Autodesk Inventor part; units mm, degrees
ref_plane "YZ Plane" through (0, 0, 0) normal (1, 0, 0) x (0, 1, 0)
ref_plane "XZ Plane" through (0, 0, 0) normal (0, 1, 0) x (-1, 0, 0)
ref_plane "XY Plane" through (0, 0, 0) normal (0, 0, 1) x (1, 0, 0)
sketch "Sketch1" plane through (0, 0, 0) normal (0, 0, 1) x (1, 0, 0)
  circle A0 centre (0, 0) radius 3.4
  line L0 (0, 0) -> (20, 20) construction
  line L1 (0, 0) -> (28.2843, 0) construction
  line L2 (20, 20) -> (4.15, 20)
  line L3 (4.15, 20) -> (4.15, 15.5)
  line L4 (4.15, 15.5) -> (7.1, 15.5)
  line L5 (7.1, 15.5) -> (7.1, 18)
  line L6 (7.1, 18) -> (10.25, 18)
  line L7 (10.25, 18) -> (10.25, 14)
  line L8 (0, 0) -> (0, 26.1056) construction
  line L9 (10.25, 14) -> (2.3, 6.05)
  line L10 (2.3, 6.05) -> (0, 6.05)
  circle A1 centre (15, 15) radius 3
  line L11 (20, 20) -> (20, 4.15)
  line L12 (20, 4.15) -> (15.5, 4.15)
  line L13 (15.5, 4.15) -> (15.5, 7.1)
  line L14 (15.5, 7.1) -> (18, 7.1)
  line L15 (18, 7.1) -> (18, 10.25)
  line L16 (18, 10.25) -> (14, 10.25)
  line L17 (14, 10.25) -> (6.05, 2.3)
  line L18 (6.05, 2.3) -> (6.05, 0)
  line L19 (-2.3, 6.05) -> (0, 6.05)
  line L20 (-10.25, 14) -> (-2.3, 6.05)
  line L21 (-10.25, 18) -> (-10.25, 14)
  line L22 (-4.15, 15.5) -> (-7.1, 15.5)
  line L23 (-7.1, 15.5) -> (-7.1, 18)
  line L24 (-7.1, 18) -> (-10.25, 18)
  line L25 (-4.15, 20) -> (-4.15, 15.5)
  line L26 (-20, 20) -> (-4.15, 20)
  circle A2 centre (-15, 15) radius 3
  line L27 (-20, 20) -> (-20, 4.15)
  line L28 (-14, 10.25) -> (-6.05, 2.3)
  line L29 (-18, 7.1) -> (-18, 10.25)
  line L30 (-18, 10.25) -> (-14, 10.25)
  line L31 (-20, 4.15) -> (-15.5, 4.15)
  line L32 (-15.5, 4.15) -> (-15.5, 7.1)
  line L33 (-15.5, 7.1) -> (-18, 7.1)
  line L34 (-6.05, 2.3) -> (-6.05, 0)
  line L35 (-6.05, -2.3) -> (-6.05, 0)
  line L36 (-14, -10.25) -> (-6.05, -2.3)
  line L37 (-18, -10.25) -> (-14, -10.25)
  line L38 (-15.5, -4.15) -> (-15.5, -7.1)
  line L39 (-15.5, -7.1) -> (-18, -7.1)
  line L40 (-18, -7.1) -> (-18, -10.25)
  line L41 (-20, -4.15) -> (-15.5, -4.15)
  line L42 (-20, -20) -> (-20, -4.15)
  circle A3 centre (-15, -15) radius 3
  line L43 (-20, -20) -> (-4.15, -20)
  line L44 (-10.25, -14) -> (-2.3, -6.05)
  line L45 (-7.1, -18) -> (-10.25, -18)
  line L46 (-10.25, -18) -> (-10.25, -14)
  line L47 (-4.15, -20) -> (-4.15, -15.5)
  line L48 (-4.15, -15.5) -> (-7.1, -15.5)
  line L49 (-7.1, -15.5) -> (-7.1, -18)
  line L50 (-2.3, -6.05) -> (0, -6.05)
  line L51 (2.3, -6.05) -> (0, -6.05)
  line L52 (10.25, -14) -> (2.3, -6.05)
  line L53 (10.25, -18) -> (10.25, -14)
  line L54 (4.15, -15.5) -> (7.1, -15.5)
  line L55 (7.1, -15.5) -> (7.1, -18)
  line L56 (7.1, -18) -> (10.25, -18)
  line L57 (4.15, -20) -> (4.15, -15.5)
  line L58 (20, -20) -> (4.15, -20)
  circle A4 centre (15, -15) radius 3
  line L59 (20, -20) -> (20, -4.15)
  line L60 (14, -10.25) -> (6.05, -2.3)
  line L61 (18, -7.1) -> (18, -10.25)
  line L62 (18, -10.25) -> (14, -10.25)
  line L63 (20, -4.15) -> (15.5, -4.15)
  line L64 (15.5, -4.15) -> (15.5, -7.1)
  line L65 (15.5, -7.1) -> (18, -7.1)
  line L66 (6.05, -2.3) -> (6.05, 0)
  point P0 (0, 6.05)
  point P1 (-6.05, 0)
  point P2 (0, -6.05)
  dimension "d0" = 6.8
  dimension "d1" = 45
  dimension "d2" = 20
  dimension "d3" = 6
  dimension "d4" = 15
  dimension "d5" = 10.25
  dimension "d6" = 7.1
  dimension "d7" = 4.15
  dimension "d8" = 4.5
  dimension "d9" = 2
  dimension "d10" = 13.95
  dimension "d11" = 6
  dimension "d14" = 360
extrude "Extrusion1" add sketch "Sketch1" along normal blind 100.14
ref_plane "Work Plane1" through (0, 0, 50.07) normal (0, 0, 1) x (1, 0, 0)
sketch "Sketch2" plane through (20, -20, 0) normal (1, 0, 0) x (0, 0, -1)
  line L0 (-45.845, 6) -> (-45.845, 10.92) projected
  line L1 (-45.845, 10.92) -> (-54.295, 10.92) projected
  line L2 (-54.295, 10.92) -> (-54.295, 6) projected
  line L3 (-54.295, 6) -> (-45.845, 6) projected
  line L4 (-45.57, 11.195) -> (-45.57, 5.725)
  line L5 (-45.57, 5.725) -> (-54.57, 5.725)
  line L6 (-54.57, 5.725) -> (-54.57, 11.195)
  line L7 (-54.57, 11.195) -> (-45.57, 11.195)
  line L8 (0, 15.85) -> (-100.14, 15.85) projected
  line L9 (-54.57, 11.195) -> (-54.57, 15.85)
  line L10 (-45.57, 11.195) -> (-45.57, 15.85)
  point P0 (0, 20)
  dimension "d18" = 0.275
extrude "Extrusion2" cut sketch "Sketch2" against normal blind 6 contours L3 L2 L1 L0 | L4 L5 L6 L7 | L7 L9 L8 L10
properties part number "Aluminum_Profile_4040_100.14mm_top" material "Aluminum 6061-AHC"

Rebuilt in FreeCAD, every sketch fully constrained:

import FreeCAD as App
import Part
import Sketcher

doc = App.newDocument("Part")
body = doc.addObject("PartDesign::Body", "Body")

# Sketch on XY plane
sketch1 = doc.addObject("Sketcher::SketchObject", "Sketch")
body.addObject(sketch1)
sketch1.AttachmentSupport = (doc.XY_Plane, [""])
sketch1.MapMode = "FlatFace"
sketch1.addGeometry(Part.LineSegment(App.Vector(20, 4.15, 0), App.Vector(20, 20, 0)), False)
sketch1.addGeometry(Part.LineSegment(App.Vector(20, 20, 0), App.Vector(4.15, 20, 0)), False)
sketch1.addGeometry(Part.LineSegment(App.Vector(4.15, 20, 0), App.Vector(4.15, 15.5, 0)), False)
sketch1.addGeometry(Part.LineSegment(App.Vector(4.15, 15.5, 0), App.Vector(7.1, 15.5, 0)), False)
sketch1.addGeometry(Part.LineSegment(App.Vector(7.1, 15.5, 0), App.Vector(7.1, 18, 0)), False)
sketch1.addGeometry(Part.LineSegment(App.Vector(7.1, 18, 0), App.Vector(10.25, 18, 0)), False)
sketch1.addGeometry(Part.LineSegment(App.Vector(10.25, 18, 0), App.Vector(10.25, 14, 0)), False)
sketch1.addGeometry(Part.LineSegment(App.Vector(10.25, 14, 0), App.Vector(2.3, 6.05, 0)), False)
sketch1.addGeometry(Part.LineSegment(App.Vector(2.3, 6.05, 0), App.Vector(-2.3, 6.05, 0)), False)
sketch1.addGeometry(Part.LineSegment(App.Vector(-2.3, 6.05, 0), App.Vector(-10.25, 14, 0)), False)
sketch1.addGeometry(Part.LineSegment(App.Vector(-10.25, 14, 0), App.Vector(-10.25, 18, 0)), False)
sketch1.addGeometry(Part.LineSegment(App.Vector(-10.25, 18, 0), App.Vector(-7.1, 18, 0)), False)
sketch1.addGeometry(Part.LineSegment(App.Vector(-7.1, 18, 0), App.Vector(-7.1, 15.5, 0)), False)
sketch1.addGeometry(Part.LineSegment(App.Vector(-7.1, 15.5, 0), App.Vector(-4.15, 15.5, 0)), False)
sketch1.addGeometry(Part.LineSegment(App.Vector(-4.15, 15.5, 0), App.Vector(-4.15, 20, 0)), False)
sketch1.addGeometry(Part.LineSegment(App.Vector(-4.15, 20, 0), App.Vector(-20, 20, 0)), False)
sketch1.addGeometry(Part.LineSegment(App.Vector(-20, 20, 0), App.Vector(-20, 4.15, 0)), False)
sketch1.addGeometry(Part.LineSegment(App.Vector(-20, 4.15, 0), App.Vector(-15.5, 4.15, 0)), False)
sketch1.addGeometry(Part.LineSegment(App.Vector(-15.5, 4.15, 0), App.Vector(-15.5, 7.1, 0)), False)
sketch1.addGeometry(Part.LineSegment(App.Vector(-15.5, 7.1, 0), App.Vector(-18, 7.1, 0)), False)
sketch1.addGeometry(Part.LineSegment(App.Vector(-18, 7.1, 0), App.Vector(-18, 10.25, 0)), False)
sketch1.addGeometry(Part.LineSegment(App.Vector(-18, 10.25, 0), App.Vector(-14, 10.25, 0)), False)
sketch1.addGeometry(Part.LineSegment(App.Vector(-14, 10.25, 0), App.Vector(-6.05, 2.3, 0)), False)
sketch1.addGeometry(Part.LineSegment(App.Vector(-6.05, 2.3, 0), App.Vector(-6.05, -2.3, 0)), False)
sketch1.addGeometry(Part.LineSegment(App.Vector(-6.05, -2.3, 0), App.Vector(-14, -10.25, 0)), False)
sketch1.addGeometry(Part.LineSegment(App.Vector(-14, -10.25, 0), App.Vector(-18, -10.25, 0)), False)
sketch1.addGeometry(Part.LineSegment(App.Vector(-18, -10.25, 0), App.Vector(-18, -7.1, 0)), False)
sketch1.addGeometry(Part.LineSegment(App.Vector(-18, -7.1, 0), App.Vector(-15.5, -7.1, 0)), False)
sketch1.addGeometry(Part.LineSegment(App.Vector(-15.5, -7.1, 0), App.Vector(-15.5, -4.15, 0)), False)
sketch1.addGeometry(Part.LineSegment(App.Vector(-15.5, -4.15, 0), App.Vector(-20, -4.15, 0)), False)
sketch1.addGeometry(Part.LineSegment(App.Vector(-20, -4.15, 0), App.Vector(-20, -20, 0)), False)
sketch1.addGeometry(Part.LineSegment(App.Vector(-20, -20, 0), App.Vector(-4.15, -20, 0)), False)
sketch1.addGeometry(Part.LineSegment(App.Vector(-4.15, -20, 0), App.Vector(-4.15, -15.5, 0)), False)
sketch1.addGeometry(Part.LineSegment(App.Vector(-4.15, -15.5, 0), App.Vector(-7.1, -15.5, 0)), False)
sketch1.addGeometry(Part.LineSegment(App.Vector(-7.1, -15.5, 0), App.Vector(-7.1, -18, 0)), False)
sketch1.addGeometry(Part.LineSegment(App.Vector(-7.1, -18, 0), App.Vector(-10.25, -18, 0)), False)
sketch1.addGeometry(Part.LineSegment(App.Vector(-10.25, -18, 0), App.Vector(-10.25, -14, 0)), False)
sketch1.addGeometry(Part.LineSegment(App.Vector(-10.25, -14, 0), App.Vector(-2.3, -6.05, 0)), False)
sketch1.addGeometry(Part.LineSegment(App.Vector(-2.3, -6.05, 0), App.Vector(2.3, -6.05, 0)), False)
sketch1.addGeometry(Part.LineSegment(App.Vector(2.3, -6.05, 0), App.Vector(10.25, -14, 0)), False)
sketch1.addGeometry(Part.LineSegment(App.Vector(10.25, -14, 0), App.Vector(10.25, -18, 0)), False)
sketch1.addGeometry(Part.LineSegment(App.Vector(10.25, -18, 0), App.Vector(7.1, -18, 0)), False)
sketch1.addGeometry(Part.LineSegment(App.Vector(7.1, -18, 0), App.Vector(7.1, -15.5, 0)), False)
sketch1.addGeometry(Part.LineSegment(App.Vector(7.1, -15.5, 0), App.Vector(4.15, -15.5, 0)), False)
sketch1.addGeometry(Part.LineSegment(App.Vector(4.15, -15.5, 0), App.Vector(4.15, -20, 0)), False)
sketch1.addGeometry(Part.LineSegment(App.Vector(4.15, -20, 0), App.Vector(20, -20, 0)), False)
sketch1.addGeometry(Part.LineSegment(App.Vector(20, -20, 0), App.Vector(20, -4.15, 0)), False)
sketch1.addGeometry(Part.LineSegment(App.Vector(20, -4.15, 0), App.Vector(15.5, -4.15, 0)), False)
sketch1.addGeometry(Part.LineSegment(App.Vector(15.5, -4.15, 0), App.Vector(15.5, -7.1, 0)), False)
sketch1.addGeometry(Part.LineSegment(App.Vector(15.5, -7.1, 0), App.Vector(18, -7.1, 0)), False)
sketch1.addGeometry(Part.LineSegment(App.Vector(18, -7.1, 0), App.Vector(18, -10.25, 0)), False)
sketch1.addGeometry(Part.LineSegment(App.Vector(18, -10.25, 0), App.Vector(14, -10.25, 0)), False)
sketch1.addGeometry(Part.LineSegment(App.Vector(14, -10.25, 0), App.Vector(6.05, -2.3, 0)), False)
sketch1.addGeometry(Part.LineSegment(App.Vector(6.05, -2.3, 0), App.Vector(6.05, 2.3, 0)), False)
sketch1.addGeometry(Part.LineSegment(App.Vector(6.05, 2.3, 0), App.Vector(14, 10.25, 0)), False)
sketch1.addGeometry(Part.LineSegment(App.Vector(14, 10.25, 0), App.Vector(18, 10.25, 0)), False)
sketch1.addGeometry(Part.LineSegment(App.Vector(18, 10.25, 0), App.Vector(18, 7.1, 0)), False)
sketch1.addGeometry(Part.LineSegment(App.Vector(18, 7.1, 0), App.Vector(15.5, 7.1, 0)), False)
sketch1.addGeometry(Part.LineSegment(App.Vector(15.5, 7.1, 0), App.Vector(15.5, 4.15, 0)), False)
sketch1.addGeometry(Part.LineSegment(App.Vector(15.5, 4.15, 0), App.Vector(20, 4.15, 0)), False)
sketch1.addGeometry(Part.Circle(App.Vector(-15, -15, 0), App.Vector(0, 0, 1), 3), False)
sketch1.addGeometry(Part.Circle(App.Vector(15, -15, 0), App.Vector(0, 0, 1), 3), False)
sketch1.addGeometry(Part.Circle(App.Vector(-15, 15, 0), App.Vector(0, 0, 1), 3), False)
sketch1.addGeometry(Part.Circle(App.Vector(0, 0, 0), App.Vector(0, 0, 1), 3.4), False)
sketch1.addGeometry(Part.Circle(App.Vector(15, 15, 0), App.Vector(0, 0, 1), 3), False)
sketch1.addConstraint(Sketcher.Constraint("Coincident", 0, 2, 1, 1))
sketch1.addConstraint(Sketcher.Constraint("Coincident", 1, 2, 2, 1))
sketch1.addConstraint(Sketcher.Constraint("Coincident", 2, 2, 3, 1))
sketch1.addConstraint(Sketcher.Constraint("Coincident", 3, 2, 4, 1))
sketch1.addConstraint(Sketcher.Constraint("Coincident", 4, 2, 5, 1))
sketch1.addConstraint(Sketcher.Constraint("Coincident", 5, 2, 6, 1))
sketch1.addConstraint(Sketcher.Constraint("Coincident", 6, 2, 7, 1))
sketch1.addConstraint(Sketcher.Constraint("Coincident", 7, 2, 8, 1))
sketch1.addConstraint(Sketcher.Constraint("Coincident", 8, 2, 9, 1))
sketch1.addConstraint(Sketcher.Constraint("Coincident", 9, 2, 10, 1))
sketch1.addConstraint(Sketcher.Constraint("Coincident", 10, 2, 11, 1))
sketch1.addConstraint(Sketcher.Constraint("Coincident", 11, 2, 12, 1))
sketch1.addConstraint(Sketcher.Constraint("Coincident", 12, 2, 13, 1))
sketch1.addConstraint(Sketcher.Constraint("Coincident", 13, 2, 14, 1))
sketch1.addConstraint(Sketcher.Constraint("Coincident", 14, 2, 15, 1))
sketch1.addConstraint(Sketcher.Constraint("Coincident", 15, 2, 16, 1))
sketch1.addConstraint(Sketcher.Constraint("Coincident", 16, 2, 17, 1))
sketch1.addConstraint(Sketcher.Constraint("Coincident", 17, 2, 18, 1))
sketch1.addConstraint(Sketcher.Constraint("Coincident", 18, 2, 19, 1))
sketch1.addConstraint(Sketcher.Constraint("Coincident", 19, 2, 20, 1))
sketch1.addConstraint(Sketcher.Constraint("Coincident", 20, 2, 21, 1))
sketch1.addConstraint(Sketcher.Constraint("Coincident", 21, 2, 22, 1))
sketch1.addConstraint(Sketcher.Constraint("Coincident", 22, 2, 23, 1))
sketch1.addConstraint(Sketcher.Constraint("Coincident", 23, 2, 24, 1))
sketch1.addConstraint(Sketcher.Constraint("Coincident", 24, 2, 25, 1))
sketch1.addConstraint(Sketcher.Constraint("Coincident", 25, 2, 26, 1))
sketch1.addConstraint(Sketcher.Constraint("Coincident", 26, 2, 27, 1))
sketch1.addConstraint(Sketcher.Constraint("Coincident", 27, 2, 28, 1))
sketch1.addConstraint(Sketcher.Constraint("Coincident", 28, 2, 29, 1))
sketch1.addConstraint(Sketcher.Constraint("Coincident", 29, 2, 30, 1))
sketch1.addConstraint(Sketcher.Constraint("Coincident", 30, 2, 31, 1))
sketch1.addConstraint(Sketcher.Constraint("Coincident", 31, 2, 32, 1))
sketch1.addConstraint(Sketcher.Constraint("Coincident", 32, 2, 33, 1))
sketch1.addConstraint(Sketcher.Constraint("Coincident", 33, 2, 34, 1))
sketch1.addConstraint(Sketcher.Constraint("Coincident", 34, 2, 35, 1))
sketch1.addConstraint(Sketcher.Constraint("Coincident", 35, 2, 36, 1))
sketch1.addConstraint(Sketcher.Constraint("Coincident", 36, 2, 37, 1))
sketch1.addConstraint(Sketcher.Constraint("Coincident", 37, 2, 38, 1))
sketch1.addConstraint(Sketcher.Constraint("Coincident", 38, 2, 39, 1))
sketch1.addConstraint(Sketcher.Constraint("Coincident", 39, 2, 40, 1))
sketch1.addConstraint(Sketcher.Constraint("Coincident", 40, 2, 41, 1))
sketch1.addConstraint(Sketcher.Constraint("Coincident", 41, 2, 42, 1))
sketch1.addConstraint(Sketcher.Constraint("Coincident", 42, 2, 43, 1))
sketch1.addConstraint(Sketcher.Constraint("Coincident", 43, 2, 44, 1))
sketch1.addConstraint(Sketcher.Constraint("Coincident", 44, 2, 45, 1))
sketch1.addConstraint(Sketcher.Constraint("Coincident", 45, 2, 46, 1))
sketch1.addConstraint(Sketcher.Constraint("Coincident", 46, 2, 47, 1))
sketch1.addConstraint(Sketcher.Constraint("Coincident", 47, 2, 48, 1))
sketch1.addConstraint(Sketcher.Constraint("Coincident", 48, 2, 49, 1))
sketch1.addConstraint(Sketcher.Constraint("Coincident", 49, 2, 50, 1))
sketch1.addConstraint(Sketcher.Constraint("Coincident", 50, 2, 51, 1))
sketch1.addConstraint(Sketcher.Constraint("Coincident", 51, 2, 52, 1))
sketch1.addConstraint(Sketcher.Constraint("Coincident", 52, 2, 53, 1))
sketch1.addConstraint(Sketcher.Constraint("Coincident", 53, 2, 54, 1))
sketch1.addConstraint(Sketcher.Constraint("Coincident", 54, 2, 55, 1))
sketch1.addConstraint(Sketcher.Constraint("Coincident", 55, 2, 56, 1))
sketch1.addConstraint(Sketcher.Constraint("Coincident", 56, 2, 57, 1))
sketch1.addConstraint(Sketcher.Constraint("Coincident", 57, 2, 58, 1))
sketch1.addConstraint(Sketcher.Constraint("Coincident", 58, 2, 59, 1))
sketch1.addConstraint(Sketcher.Constraint("Coincident", 59, 2, 0, 1))
sketch1.addConstraint(Sketcher.Constraint("Vertical", 0))
sketch1.addConstraint(Sketcher.Constraint("Horizontal", 1))
sketch1.addConstraint(Sketcher.Constraint("Vertical", 2))
sketch1.addConstraint(Sketcher.Constraint("Horizontal", 3))
sketch1.addConstraint(Sketcher.Constraint("Vertical", 4))
sketch1.addConstraint(Sketcher.Constraint("Horizontal", 5))
sketch1.addConstraint(Sketcher.Constraint("Vertical", 6))
sketch1.addConstraint(Sketcher.Constraint("Horizontal", 8))
sketch1.addConstraint(Sketcher.Constraint("Vertical", 10))
sketch1.addConstraint(Sketcher.Constraint("Horizontal", 11))
sketch1.addConstraint(Sketcher.Constraint("Vertical", 12))
sketch1.addConstraint(Sketcher.Constraint("Horizontal", 13))
sketch1.addConstraint(Sketcher.Constraint("Vertical", 14))
sketch1.addConstraint(Sketcher.Constraint("Horizontal", 15))
sketch1.addConstraint(Sketcher.Constraint("Vertical", 16))
sketch1.addConstraint(Sketcher.Constraint("Horizontal", 17))
sketch1.addConstraint(Sketcher.Constraint("Vertical", 18))
sketch1.addConstraint(Sketcher.Constraint("Horizontal", 19))
sketch1.addConstraint(Sketcher.Constraint("Vertical", 20))
sketch1.addConstraint(Sketcher.Constraint("Horizontal", 21))
sketch1.addConstraint(Sketcher.Constraint("Vertical", 23))
sketch1.addConstraint(Sketcher.Constraint("Horizontal", 25))
sketch1.addConstraint(Sketcher.Constraint("Vertical", 26))
sketch1.addConstraint(Sketcher.Constraint("Horizontal", 27))
sketch1.addConstraint(Sketcher.Constraint("Vertical", 28))
sketch1.addConstraint(Sketcher.Constraint("Horizontal", 29))
sketch1.addConstraint(Sketcher.Constraint("Vertical", 30))
sketch1.addConstraint(Sketcher.Constraint("Horizontal", 31))
sketch1.addConstraint(Sketcher.Constraint("Vertical", 32))
sketch1.addConstraint(Sketcher.Constraint("Horizontal", 33))
sketch1.addConstraint(Sketcher.Constraint("Vertical", 34))
sketch1.addConstraint(Sketcher.Constraint("Horizontal", 35))
sketch1.addConstraint(Sketcher.Constraint("Vertical", 36))
sketch1.addConstraint(Sketcher.Constraint("Horizontal", 38))
sketch1.addConstraint(Sketcher.Constraint("Vertical", 40))
sketch1.addConstraint(Sketcher.Constraint("Horizontal", 41))
sketch1.addConstraint(Sketcher.Constraint("Vertical", 42))
sketch1.addConstraint(Sketcher.Constraint("Horizontal", 43))
sketch1.addConstraint(Sketcher.Constraint("Vertical", 44))
sketch1.addConstraint(Sketcher.Constraint("Horizontal", 45))
sketch1.addConstraint(Sketcher.Constraint("Vertical", 46))
sketch1.addConstraint(Sketcher.Constraint("Horizontal", 47))
sketch1.addConstraint(Sketcher.Constraint("Vertical", 48))
sketch1.addConstraint(Sketcher.Constraint("Horizontal", 49))
sketch1.addConstraint(Sketcher.Constraint("Vertical", 50))
sketch1.addConstraint(Sketcher.Constraint("Horizontal", 51))
sketch1.addConstraint(Sketcher.Constraint("Vertical", 53))
sketch1.addConstraint(Sketcher.Constraint("Horizontal", 55))
sketch1.addConstraint(Sketcher.Constraint("Vertical", 56))
sketch1.addConstraint(Sketcher.Constraint("Horizontal", 57))
sketch1.addConstraint(Sketcher.Constraint("Vertical", 58))
sketch1.addConstraint(Sketcher.Constraint("Horizontal", 59))
sketch1.addConstraint(Sketcher.Constraint("Coincident", 63, 3, -1, 1))
sketch1.addConstraint(Sketcher.Constraint("Equal", 60, 61))
sketch1.addConstraint(Sketcher.Constraint("Equal", 61, 62))
sketch1.addConstraint(Sketcher.Constraint("Equal", 62, 64))
sketch1.addConstraint(Sketcher.Constraint("Symmetric", 61, 3, 62, 3, -1, 1))
sketch1.addConstraint(Sketcher.Constraint("Symmetric", 60, 3, 64, 3, -1, 1))
sketch1.addConstraint(Sketcher.Constraint("Symmetric", 0, 2, 30, 2, -1, 1))
sketch1.addConstraint(Sketcher.Constraint("Symmetric", 2, 2, 32, 2, -1, 1))
sketch1.addConstraint(Sketcher.Constraint("Symmetric", 4, 2, 34, 2, -1, 1))
sketch1.addConstraint(Sketcher.Constraint("Symmetric", 6, 2, 36, 2, -1, 1))
sketch1.addConstraint(Sketcher.Constraint("Symmetric", 7, 2, 37, 2, -1, 1))
sketch1.addConstraint(Sketcher.Constraint("Symmetric", 9, 2, 39, 2, -1, 1))
sketch1.addConstraint(Sketcher.Constraint("Symmetric", 11, 2, 41, 2, -1, 1))
sketch1.addConstraint(Sketcher.Constraint("Symmetric", 13, 2, 43, 2, -1, 1))
sketch1.addConstraint(Sketcher.Constraint("Symmetric", 15, 2, 45, 2, -1, 1))
sketch1.addConstraint(Sketcher.Constraint("Symmetric", 17, 2, 47, 2, -1, 1))
sketch1.addConstraint(Sketcher.Constraint("Symmetric", 19, 2, 49, 2, -1, 1))
sketch1.addConstraint(Sketcher.Constraint("Symmetric", 21, 2, 51, 2, -1, 1))
sketch1.addConstraint(Sketcher.Constraint("Symmetric", 22, 2, 52, 2, -1, 1))
sketch1.addConstraint(Sketcher.Constraint("Symmetric", 24, 2, 54, 2, -1, 1))
sketch1.addConstraint(Sketcher.Constraint("Symmetric", 26, 2, 56, 2, -1, 1))
sketch1.addConstraint(Sketcher.Constraint("Symmetric", 28, 2, 58, 2, -1, 1))
sketch1.addConstraint(Sketcher.Constraint("Symmetric", 60, 3, 61, 3, -2))
sketch1.addConstraint(Sketcher.Constraint("Symmetric", 6, 2, 9, 2, -2))
sketch1.addConstraint(Sketcher.Constraint("Symmetric", 4, 2, 11, 2, -2))
sketch1.addConstraint(Sketcher.Constraint("Symmetric", 2, 2, 13, 2, -2))
sketch1.addConstraint(Sketcher.Constraint("Symmetric", 0, 2, 15, 2, -2))
sketch1.addConstraint(Sketcher.Constraint("Symmetric", 28, 2, 47, 2, -2))
sketch1.addConstraint(Sketcher.Constraint("Symmetric", 26, 2, 49, 2, -2))
sketch1.addConstraint(Sketcher.Constraint("Symmetric", 24, 2, 51, 2, -2))
sketch1.addConstraint(Sketcher.Constraint("Perpendicular", 7, 9))
sketch1.addConstraint(Sketcher.Constraint("Parallel", 9, 22))
sketch1.addConstraint(Sketcher.Constraint("Perpendicular", 22, 24))
sketch1.addConstraint(Sketcher.Constraint("Perpendicular", 37, 39))
sketch1.addConstraint(Sketcher.Constraint("Perpendicular", 52, 54))
sketch1.addConstraint(Sketcher.Constraint("Horizontal", 23, 2, 52, 2))
sketch1.addConstraint(Sketcher.Constraint("Equal", 45, 0))
sketch1.addConstraint(Sketcher.Constraint("Equal", 59, 2))
sketch1.addConstraint(Sketcher.Constraint("Equal", 57, 4))
sketch1.addConstraint(Sketcher.Constraint("Equal", 55, 6))
sketch1.addConstraint(Sketcher.Constraint("Equal", 43, 18))
sketch1.addConstraint(Sketcher.Constraint("Equal", 41, 20))
sketch1.addConstraint(Sketcher.Constraint("Equal", 38, 23))
sketch1.addConstraint(Sketcher.Constraint("Equal", 9, 22))
sketch1.addConstraint(Sketcher.Constraint("Diameter", 60, 6.0))
sketch1.addConstraint(Sketcher.Constraint("Diameter", 63, 6.8))
sketch1.addConstraint(Sketcher.Constraint("DistanceX", 17, 1, 17, 2, 4.5))
sketch1.addConstraint(Sketcher.Constraint("DistanceX", 60, 3, -1, 1, 15.0))
sketch1.addConstraint(Sketcher.Constraint("DistanceY", 60, 3, -1, 1, 15.0))
sketch1.addConstraint(Sketcher.Constraint("DistanceX", -1, 1, 0, 2, 20.0))
sketch1.addConstraint(Sketcher.Constraint("DistanceX", -1, 1, 3, 2, 7.1))
sketch1.addConstraint(Sketcher.Constraint("DistanceX", 21, 1, 21, 2, 4.0))
sketch1.addConstraint(Sketcher.Constraint("DistanceX", -1, 1, 1, 2, 4.15))
sketch1.addConstraint(Sketcher.Constraint("DistanceX", -1, 1, 5, 2, 10.25))
sketch1.addConstraint(Sketcher.Constraint("DistanceX", 8, 2, 8, 1, 4.6))
sketch1.addConstraint(Sketcher.Constraint("DistanceX", 19, 2, 19, 1, 2.5))
pad1 = doc.addObject("PartDesign::Pad", "Pad")
body.addObject(pad1)
pad1.Profile = sketch1
pad1.Length = 100.14

# Sketch on YZ plane
sketch2 = doc.addObject("Sketcher::SketchObject", "Sketch001")
body.addObject(sketch2)
sketch2.AttachmentSupport = (doc.YZ_Plane, [""])
sketch2.MapMode = "FlatFace"
sketch2.AttachmentOffset = App.Placement(App.Vector(0, 0, 20), App.Rotation())
sketch2.addGeometry(Part.LineSegment(App.Vector(-14.275, 45.57, 0), App.Vector(-4.15, 45.57, 0)), False)
sketch2.addGeometry(Part.LineSegment(App.Vector(-4.15, 45.57, 0), App.Vector(-4.15, 54.57, 0)), False)
sketch2.addGeometry(Part.LineSegment(App.Vector(-4.15, 54.57, 0), App.Vector(-14.275, 54.57, 0)), False)
sketch2.addGeometry(Part.LineSegment(App.Vector(-14.275, 54.57, 0), App.Vector(-14.275, 45.57, 0)), False)
sketch2.addConstraint(Sketcher.Constraint("Coincident", 0, 2, 1, 1))
sketch2.addConstraint(Sketcher.Constraint("Coincident", 1, 2, 2, 1))
sketch2.addConstraint(Sketcher.Constraint("Coincident", 2, 2, 3, 1))
sketch2.addConstraint(Sketcher.Constraint("Coincident", 3, 2, 0, 1))
sketch2.addConstraint(Sketcher.Constraint("Horizontal", 0))
sketch2.addConstraint(Sketcher.Constraint("Vertical", 1))
sketch2.addConstraint(Sketcher.Constraint("Horizontal", 2))
sketch2.addConstraint(Sketcher.Constraint("Vertical", 3))
sketch2.addConstraint(Sketcher.Constraint("DistanceY", 1, 1, 1, 2, 9.0))
sketch2.addConstraint(Sketcher.Constraint("DistanceX", 0, 1, 0, 2, 10.125))
sketch2.addConstraint(Sketcher.Constraint("DistanceX", 0, 2, -1, 1, 4.15))
sketch2.addConstraint(Sketcher.Constraint("DistanceY", -1, 1, 0, 2, 45.57))
pocket1 = doc.addObject("PartDesign::Pocket", "Pocket")
body.addObject(pocket1)
pocket1.Profile = sketch2
pocket1.Length = 6

doc.recompute()
